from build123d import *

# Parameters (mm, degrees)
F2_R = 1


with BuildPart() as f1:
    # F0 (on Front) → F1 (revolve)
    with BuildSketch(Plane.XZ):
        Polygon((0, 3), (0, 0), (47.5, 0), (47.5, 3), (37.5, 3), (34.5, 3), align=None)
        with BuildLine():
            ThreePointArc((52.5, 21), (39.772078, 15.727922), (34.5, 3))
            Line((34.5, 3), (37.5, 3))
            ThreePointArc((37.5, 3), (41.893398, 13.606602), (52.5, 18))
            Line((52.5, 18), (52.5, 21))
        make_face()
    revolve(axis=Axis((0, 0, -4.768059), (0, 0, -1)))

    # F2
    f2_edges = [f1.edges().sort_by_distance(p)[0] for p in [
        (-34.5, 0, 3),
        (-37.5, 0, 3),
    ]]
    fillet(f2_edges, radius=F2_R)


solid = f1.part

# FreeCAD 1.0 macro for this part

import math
import FreeCAD as App
import Part
import Sketcher
from FreeCAD import Vector


def edges_at(feature, points):
    """Names of the edges that pass closest to the given points."""
    edges = feature.Shape.Edges
    near = lambda p: min(range(len(edges)), key=lambda i: edges[i].distToShape(Part.Vertex(*p))[0])
    return sorted({f"Edge{near(p) + 1}" for p in points})

doc = App.newDocument("Part")
body = doc.addObject("PartDesign::Body", "Body")

# Sketch on XZ plane
sketch1 = body.newObject("Sketcher::SketchObject", "Sketch")
sketch1.AttachmentSupport = (doc.getObject("XZ_Plane"), [""])
sketch1.MapMode = "FlatFace"
sketch1.addGeometry([
    Part.LineSegment(Vector(0, 3, 0), Vector(0, 0, 0)),  # 0
    Part.LineSegment(Vector(0, 0, 0), Vector(47.5, 0, 0)),  # 1
    Part.LineSegment(Vector(47.5, 0, 0), Vector(47.5, 3, 0)),  # 2
    Part.LineSegment(Vector(47.5, 3, 0), Vector(37.5, 3, 0)),  # 3
    Part.ArcOfCircle(Part.Circle(Vector(52.5, 3, 0), Vector(0, 0, 1), 15), math.radians(90), math.radians(180)),  # 4
    Part.LineSegment(Vector(52.5, 18, 0), Vector(52.5, 21, 0)),  # 5
    Part.ArcOfCircle(Part.Circle(Vector(52.5, 3, 0), Vector(0, 0, 1), 18), math.radians(90), math.radians(180)),  # 6
    Part.LineSegment(Vector(34.5, 3, 0), Vector(0, 3, 0)),  # 7
], False)
sketch1.addConstraint([
    Sketcher.Constraint("Coincident", 0, 2, 1, 1),
    Sketcher.Constraint("Coincident", 1, 2, 2, 1),
    Sketcher.Constraint("Coincident", 2, 2, 3, 1),
    Sketcher.Constraint("Coincident", 3, 2, 4, 2),
    Sketcher.Constraint("Coincident", 4, 1, 5, 1),
    Sketcher.Constraint("Coincident", 5, 2, 6, 1),
    Sketcher.Constraint("Coincident", 6, 2, 7, 1),
    Sketcher.Constraint("Coincident", 7, 2, 0, 1),
    Sketcher.Constraint("Vertical", 0),
    Sketcher.Constraint("Horizontal", 1),
    Sketcher.Constraint("Vertical", 2),
    Sketcher.Constraint("Horizontal", 3),
    Sketcher.Constraint("Vertical", 5),
    Sketcher.Constraint("Horizontal", 7),
    Sketcher.Constraint("Coincident", 0, 2, -1, 1),
    Sketcher.Constraint("Coincident", 6, 3, 4, 3),
    Sketcher.Constraint("Horizontal", 6, 3, 2, 2),
    Sketcher.Constraint("Horizontal", 3, 2, 6, 2),
    Sketcher.Constraint("Vertical", 6, 3, 4, 1),
    Sketcher.Constraint("Equal", 2, 5),
    Sketcher.Constraint("Radius", 4, 14.999999),
    Sketcher.Constraint("Radius", 6, 18.0),
    Sketcher.Constraint("DistanceX", 3, 2, 3, 1, 10.0),
    Sketcher.Constraint("DistanceX", 1, 1, 1, 2, 47.5),
])
revolution = body.newObject("PartDesign::Revolution", "Revolution")
revolution.Profile = sketch1
revolution.ReferenceAxis = (sketch1, ["V_Axis"])
revolution.Angle = 360
doc.recompute()

fillet = body.newObject("PartDesign::Fillet", "Fillet")
fillet.Base = (revolution, edges_at(revolution, [(-34.5, 0, 3), (-37.5, 0, 3)]))
fillet.Radius = 1

doc.recompute()
